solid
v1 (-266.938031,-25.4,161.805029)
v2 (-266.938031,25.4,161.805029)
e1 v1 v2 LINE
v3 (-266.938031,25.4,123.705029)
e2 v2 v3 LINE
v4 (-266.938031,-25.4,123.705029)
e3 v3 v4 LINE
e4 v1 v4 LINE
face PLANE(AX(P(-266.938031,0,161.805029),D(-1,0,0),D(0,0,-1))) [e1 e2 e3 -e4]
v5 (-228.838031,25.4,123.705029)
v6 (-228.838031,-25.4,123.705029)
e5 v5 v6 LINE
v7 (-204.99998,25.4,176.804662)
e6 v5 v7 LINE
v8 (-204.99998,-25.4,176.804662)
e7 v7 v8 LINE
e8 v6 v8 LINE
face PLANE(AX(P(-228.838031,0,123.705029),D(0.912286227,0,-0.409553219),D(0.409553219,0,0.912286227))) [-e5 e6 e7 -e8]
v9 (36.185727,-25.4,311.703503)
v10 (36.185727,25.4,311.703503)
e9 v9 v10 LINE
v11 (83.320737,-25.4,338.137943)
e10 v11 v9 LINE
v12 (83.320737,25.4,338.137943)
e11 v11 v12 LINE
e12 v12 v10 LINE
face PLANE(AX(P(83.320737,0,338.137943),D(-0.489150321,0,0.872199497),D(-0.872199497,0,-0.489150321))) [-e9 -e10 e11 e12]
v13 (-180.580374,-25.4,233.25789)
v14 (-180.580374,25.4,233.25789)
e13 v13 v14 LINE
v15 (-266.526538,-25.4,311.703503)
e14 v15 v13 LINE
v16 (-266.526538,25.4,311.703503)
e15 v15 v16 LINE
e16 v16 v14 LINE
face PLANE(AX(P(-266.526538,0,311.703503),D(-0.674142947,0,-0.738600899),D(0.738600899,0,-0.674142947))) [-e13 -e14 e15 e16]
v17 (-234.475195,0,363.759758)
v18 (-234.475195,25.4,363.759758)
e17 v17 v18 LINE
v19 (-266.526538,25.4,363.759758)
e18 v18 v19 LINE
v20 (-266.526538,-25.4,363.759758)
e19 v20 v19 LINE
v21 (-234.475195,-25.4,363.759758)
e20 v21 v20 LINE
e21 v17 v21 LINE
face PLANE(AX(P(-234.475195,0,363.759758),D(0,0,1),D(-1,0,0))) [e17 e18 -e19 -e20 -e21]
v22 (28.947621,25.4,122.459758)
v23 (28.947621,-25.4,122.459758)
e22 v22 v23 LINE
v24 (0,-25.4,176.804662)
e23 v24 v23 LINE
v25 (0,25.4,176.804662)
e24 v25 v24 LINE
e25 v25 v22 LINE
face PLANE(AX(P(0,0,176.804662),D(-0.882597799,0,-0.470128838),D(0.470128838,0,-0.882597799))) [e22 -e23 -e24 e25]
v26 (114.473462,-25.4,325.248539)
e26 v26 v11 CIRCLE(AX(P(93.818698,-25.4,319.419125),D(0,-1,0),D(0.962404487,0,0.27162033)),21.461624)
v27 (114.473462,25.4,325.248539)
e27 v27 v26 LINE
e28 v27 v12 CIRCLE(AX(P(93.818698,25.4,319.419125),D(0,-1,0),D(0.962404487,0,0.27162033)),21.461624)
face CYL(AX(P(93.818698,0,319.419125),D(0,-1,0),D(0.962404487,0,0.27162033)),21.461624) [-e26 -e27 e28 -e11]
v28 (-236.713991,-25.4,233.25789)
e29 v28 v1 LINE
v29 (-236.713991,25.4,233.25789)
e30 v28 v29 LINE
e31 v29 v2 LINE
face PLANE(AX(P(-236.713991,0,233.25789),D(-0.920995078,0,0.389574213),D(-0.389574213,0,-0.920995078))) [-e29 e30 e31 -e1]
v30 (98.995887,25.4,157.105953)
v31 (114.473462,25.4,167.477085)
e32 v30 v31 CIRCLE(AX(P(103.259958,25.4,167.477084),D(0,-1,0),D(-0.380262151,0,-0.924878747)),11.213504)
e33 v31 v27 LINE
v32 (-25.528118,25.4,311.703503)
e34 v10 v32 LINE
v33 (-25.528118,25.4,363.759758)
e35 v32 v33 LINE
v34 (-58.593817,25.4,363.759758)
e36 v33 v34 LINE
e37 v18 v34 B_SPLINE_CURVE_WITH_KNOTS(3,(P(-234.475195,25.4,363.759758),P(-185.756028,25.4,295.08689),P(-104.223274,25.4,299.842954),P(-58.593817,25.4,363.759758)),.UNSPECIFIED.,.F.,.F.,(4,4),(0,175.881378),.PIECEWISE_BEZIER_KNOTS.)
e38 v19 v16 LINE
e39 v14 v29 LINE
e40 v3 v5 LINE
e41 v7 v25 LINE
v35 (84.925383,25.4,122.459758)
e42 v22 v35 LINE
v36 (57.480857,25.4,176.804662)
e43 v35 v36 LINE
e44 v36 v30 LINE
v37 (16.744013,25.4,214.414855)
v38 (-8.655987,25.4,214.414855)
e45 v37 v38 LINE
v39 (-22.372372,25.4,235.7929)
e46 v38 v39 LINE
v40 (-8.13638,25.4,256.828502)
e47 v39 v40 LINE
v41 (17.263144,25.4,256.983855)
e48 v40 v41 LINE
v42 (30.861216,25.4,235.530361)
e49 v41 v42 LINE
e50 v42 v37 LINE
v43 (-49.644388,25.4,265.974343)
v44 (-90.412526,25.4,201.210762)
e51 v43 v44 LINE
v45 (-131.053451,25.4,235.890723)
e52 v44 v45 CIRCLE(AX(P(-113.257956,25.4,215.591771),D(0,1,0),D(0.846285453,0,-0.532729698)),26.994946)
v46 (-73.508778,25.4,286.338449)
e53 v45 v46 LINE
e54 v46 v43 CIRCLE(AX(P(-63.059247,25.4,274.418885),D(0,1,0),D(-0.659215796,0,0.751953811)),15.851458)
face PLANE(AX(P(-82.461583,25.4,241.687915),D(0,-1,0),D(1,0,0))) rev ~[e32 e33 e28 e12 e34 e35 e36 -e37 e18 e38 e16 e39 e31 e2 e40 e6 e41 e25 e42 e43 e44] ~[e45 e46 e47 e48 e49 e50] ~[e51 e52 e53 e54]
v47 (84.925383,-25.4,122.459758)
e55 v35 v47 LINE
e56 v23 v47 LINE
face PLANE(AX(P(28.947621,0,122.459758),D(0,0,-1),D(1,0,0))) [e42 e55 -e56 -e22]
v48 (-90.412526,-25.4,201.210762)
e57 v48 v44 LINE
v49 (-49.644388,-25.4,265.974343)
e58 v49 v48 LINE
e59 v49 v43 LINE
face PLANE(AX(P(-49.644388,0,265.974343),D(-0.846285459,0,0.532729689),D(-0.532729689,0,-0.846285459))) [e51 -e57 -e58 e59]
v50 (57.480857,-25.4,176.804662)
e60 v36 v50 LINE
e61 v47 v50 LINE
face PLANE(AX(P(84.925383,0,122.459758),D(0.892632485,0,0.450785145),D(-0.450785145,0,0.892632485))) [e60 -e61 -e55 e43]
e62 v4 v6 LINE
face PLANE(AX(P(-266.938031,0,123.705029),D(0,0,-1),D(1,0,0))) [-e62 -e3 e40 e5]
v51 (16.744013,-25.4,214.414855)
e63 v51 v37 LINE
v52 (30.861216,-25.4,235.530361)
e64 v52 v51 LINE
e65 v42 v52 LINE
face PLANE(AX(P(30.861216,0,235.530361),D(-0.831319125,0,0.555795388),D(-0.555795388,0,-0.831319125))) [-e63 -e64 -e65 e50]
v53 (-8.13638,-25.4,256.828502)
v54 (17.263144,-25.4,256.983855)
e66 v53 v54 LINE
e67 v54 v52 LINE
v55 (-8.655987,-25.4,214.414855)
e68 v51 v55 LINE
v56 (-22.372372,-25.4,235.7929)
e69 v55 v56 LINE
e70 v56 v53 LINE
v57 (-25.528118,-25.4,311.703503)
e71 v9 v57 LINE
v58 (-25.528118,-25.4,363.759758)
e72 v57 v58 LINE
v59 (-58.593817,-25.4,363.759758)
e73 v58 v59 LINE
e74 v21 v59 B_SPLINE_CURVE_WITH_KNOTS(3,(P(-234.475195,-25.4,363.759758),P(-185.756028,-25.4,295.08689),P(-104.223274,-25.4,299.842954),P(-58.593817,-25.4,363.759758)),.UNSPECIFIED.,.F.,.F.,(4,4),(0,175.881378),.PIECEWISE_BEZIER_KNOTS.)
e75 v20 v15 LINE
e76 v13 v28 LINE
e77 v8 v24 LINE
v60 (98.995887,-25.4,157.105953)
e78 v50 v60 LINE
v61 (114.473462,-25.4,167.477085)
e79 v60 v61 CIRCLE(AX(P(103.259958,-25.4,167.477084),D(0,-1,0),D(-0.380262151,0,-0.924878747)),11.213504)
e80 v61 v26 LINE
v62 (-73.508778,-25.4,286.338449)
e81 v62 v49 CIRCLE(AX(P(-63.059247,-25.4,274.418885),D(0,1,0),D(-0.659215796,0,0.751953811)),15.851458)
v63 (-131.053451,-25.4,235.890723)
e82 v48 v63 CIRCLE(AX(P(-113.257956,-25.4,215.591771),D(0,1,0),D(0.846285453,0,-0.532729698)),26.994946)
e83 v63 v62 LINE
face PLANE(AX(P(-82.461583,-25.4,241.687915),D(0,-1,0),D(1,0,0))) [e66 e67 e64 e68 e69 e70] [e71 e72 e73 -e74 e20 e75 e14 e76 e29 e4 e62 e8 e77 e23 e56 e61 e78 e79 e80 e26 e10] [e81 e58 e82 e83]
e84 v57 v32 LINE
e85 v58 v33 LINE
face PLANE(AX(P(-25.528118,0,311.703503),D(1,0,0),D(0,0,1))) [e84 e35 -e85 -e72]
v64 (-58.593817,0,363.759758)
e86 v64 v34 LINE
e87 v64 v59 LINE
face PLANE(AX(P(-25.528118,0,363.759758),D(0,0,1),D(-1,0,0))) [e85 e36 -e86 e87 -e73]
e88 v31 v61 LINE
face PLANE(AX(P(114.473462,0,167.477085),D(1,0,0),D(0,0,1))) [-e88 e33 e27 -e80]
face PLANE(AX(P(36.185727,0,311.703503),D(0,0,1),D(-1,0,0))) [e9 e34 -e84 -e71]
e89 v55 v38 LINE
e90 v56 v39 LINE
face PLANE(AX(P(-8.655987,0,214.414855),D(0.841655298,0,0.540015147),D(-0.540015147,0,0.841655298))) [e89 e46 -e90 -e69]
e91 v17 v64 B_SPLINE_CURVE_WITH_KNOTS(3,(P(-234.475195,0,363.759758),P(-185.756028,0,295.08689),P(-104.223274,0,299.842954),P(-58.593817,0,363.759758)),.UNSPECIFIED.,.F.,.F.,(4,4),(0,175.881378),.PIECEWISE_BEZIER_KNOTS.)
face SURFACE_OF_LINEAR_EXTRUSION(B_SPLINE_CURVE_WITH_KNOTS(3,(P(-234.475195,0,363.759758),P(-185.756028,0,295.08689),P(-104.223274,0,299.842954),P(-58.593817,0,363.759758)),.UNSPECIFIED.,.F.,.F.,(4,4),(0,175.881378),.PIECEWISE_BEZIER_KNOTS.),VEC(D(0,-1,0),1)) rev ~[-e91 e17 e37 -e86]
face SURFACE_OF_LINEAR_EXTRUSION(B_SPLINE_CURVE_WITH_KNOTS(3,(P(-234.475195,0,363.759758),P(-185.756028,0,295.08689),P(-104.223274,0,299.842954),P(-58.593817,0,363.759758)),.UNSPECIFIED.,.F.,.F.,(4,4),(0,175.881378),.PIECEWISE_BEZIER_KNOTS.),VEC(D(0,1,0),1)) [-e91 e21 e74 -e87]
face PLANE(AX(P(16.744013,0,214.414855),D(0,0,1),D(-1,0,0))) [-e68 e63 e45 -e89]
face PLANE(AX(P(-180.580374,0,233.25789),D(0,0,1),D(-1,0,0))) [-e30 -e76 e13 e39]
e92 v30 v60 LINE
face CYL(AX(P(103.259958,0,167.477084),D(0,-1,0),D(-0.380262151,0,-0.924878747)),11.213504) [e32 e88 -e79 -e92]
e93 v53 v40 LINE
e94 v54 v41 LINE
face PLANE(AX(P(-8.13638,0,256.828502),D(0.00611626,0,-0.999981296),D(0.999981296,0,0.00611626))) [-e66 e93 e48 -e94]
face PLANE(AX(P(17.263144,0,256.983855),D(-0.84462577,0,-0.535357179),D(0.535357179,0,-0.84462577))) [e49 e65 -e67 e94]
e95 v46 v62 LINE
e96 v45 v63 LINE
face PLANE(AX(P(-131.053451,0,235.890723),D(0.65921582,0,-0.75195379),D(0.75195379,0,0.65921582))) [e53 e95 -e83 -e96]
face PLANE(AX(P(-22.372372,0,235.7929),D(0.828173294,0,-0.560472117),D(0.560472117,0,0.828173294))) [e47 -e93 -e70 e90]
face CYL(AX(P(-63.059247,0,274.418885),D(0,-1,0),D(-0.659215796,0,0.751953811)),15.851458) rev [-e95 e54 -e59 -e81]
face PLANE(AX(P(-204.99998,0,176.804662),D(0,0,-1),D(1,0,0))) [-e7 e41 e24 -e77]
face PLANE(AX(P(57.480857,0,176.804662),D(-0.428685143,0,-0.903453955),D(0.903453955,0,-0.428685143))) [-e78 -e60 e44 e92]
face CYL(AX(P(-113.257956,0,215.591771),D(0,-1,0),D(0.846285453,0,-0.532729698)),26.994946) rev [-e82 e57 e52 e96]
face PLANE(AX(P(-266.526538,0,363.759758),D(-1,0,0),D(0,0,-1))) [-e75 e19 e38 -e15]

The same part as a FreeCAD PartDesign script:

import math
import FreeCAD as App
import Part
import Sketcher
from FreeCAD import Vector
Q = App.Units.Quantity

doc = App.newDocument("Part")
body = doc.addObject("PartDesign::Body", "Body")

# Sketch on XZ plane
sketch1 = body.newObject("Sketcher::SketchObject", "Sketch")
sketch1.AttachmentSupport = (doc.getObject("XZ_Plane"), [""])
sketch1.MapMode = "FlatFace"
sketch1.addGeometry([
    Part.LineSegment(Vector(-266.938031, 161.805029, 0), Vector(-266.938031, 123.705029, 0)),  # 0
    Part.LineSegment(Vector(-266.938031, 123.705029, 0), Vector(-228.838031, 123.705029, 0)),  # 1
    Part.LineSegment(Vector(-228.838031, 123.705029, 0), Vector(-204.99998, 176.804662, 0)),  # 2
    Part.LineSegment(Vector(-204.99998, 176.804662, 0), Vector(0, 176.804662, 0)),  # 3
    Part.LineSegment(Vector(0, 176.804662, 0), Vector(28.947621, 122.459758, 0)),  # 4
    Part.LineSegment(Vector(28.947621, 122.459758, 0), Vector(84.925383, 122.459758, 0)),  # 5
    Part.LineSegment(Vector(84.925383, 122.459758, 0), Vector(57.480857, 176.804662, 0)),  # 6
    Part.LineSegment(Vector(57.480857, 176.804662, 0), Vector(98.995887, 157.105953, 0)),  # 7
    Part.ArcOfCircle(Part.Circle(Vector(103.259958, 167.477084, 0), Vector(0, 0, 1), 11.213504), math.radians(-112.349922), math.radians(0.000003)),  # 8
    Part.LineSegment(Vector(114.473462, 167.477085, 0), Vector(114.473462, 325.248539, 0)),  # 9
    Part.ArcOfCircle(Part.Circle(Vector(93.818698, 319.419125, 0), Vector(0, 0, 1), 21.461624), math.radians(15.760709), math.radians(119.284753)),  # 10
    Part.LineSegment(Vector(83.320737, 338.137943, 0), Vector(36.185727, 311.703503, 0)),  # 11
    Part.LineSegment(Vector(36.185727, 311.703503, 0), Vector(-25.528118, 311.703503, 0)),  # 12
    Part.LineSegment(Vector(-25.528118, 311.703503, 0), Vector(-25.528118, 363.759758, 0)),  # 13
    Part.LineSegment(Vector(-25.528118, 363.759758, 0), Vector(-58.593817, 363.759758, 0)),  # 14
    Part.BSplineCurve([Vector(-234.475195, 363.759758, 0), Vector(-185.756028, 295.08689, 0), Vector(-104.223274, 299.842954, 0), Vector(-58.593817, 363.759758, 0)], [4, 4], [0, 175.881378], False, 3, [1, 1, 1, 1], False),  # 15
    Part.LineSegment(Vector(-234.475195, 363.759758, 0), Vector(-266.526538, 363.759758, 0)),  # 16
    Part.LineSegment(Vector(-266.526538, 363.759758, 0), Vector(-266.526538, 311.703503, 0)),  # 17
    Part.LineSegment(Vector(-266.526538, 311.703503, 0), Vector(-180.580374, 233.25789, 0)),  # 18
    Part.LineSegment(Vector(-180.580374, 233.25789, 0), Vector(-236.713991, 233.25789, 0)),  # 19
    Part.LineSegment(Vector(-236.713991, 233.25789, 0), Vector(-266.938031, 161.805029, 0)),  # 20
    Part.LineSegment(Vector(17.263144, 256.983855, 0), Vector(30.861216, 235.530361, 0)),  # 21
    Part.LineSegment(Vector(30.861216, 235.530361, 0), Vector(16.744013, 214.414855, 0)),  # 22
    Part.LineSegment(Vector(16.744013, 214.414855, 0), Vector(-8.655987, 214.414855, 0)),  # 23
    Part.LineSegment(Vector(-8.655987, 214.414855, 0), Vector(-22.372372, 235.7929, 0)),  # 24
    Part.LineSegment(Vector(-22.372372, 235.7929, 0), Vector(-8.13638, 256.828502, 0)),  # 25
    Part.LineSegment(Vector(-8.13638, 256.828502, 0), Vector(17.263144, 256.983855, 0)),  # 26
    Part.ArcOfCircle(Part.Circle(Vector(-113.257956, 215.591771, 0), Vector(0, 0, 1), 26.994946), math.radians(131.240094), math.radians(327.809924)),  # 27
    Part.LineSegment(Vector(-131.053451, 235.890723, 0), Vector(-73.508778, 286.338449, 0)),  # 28
    Part.ArcOfCircle(Part.Circle(Vector(-63.059247, 274.418885, 0), Vector(0, 0, 1), 15.851458), math.radians(-32.190073), math.radians(131.240092)),  # 29
    Part.LineSegment(Vector(-49.644388, 265.974343, 0), Vector(-90.412526, 201.210762, 0)),  # 30
], False)
sketch1.addConstraint([
    Sketcher.Constraint("Block", 15),
    Sketcher.Constraint("Coincident", 0, 2, 1, 1),
    Sketcher.Constraint("Coincident", 1, 2, 2, 1),
    Sketcher.Constraint("Coincident", 2, 2, 3, 1),
    Sketcher.Constraint("Coincident", 3, 2, 4, 1),
    Sketcher.Constraint("Coincident", 4, 2, 5, 1),
    Sketcher.Constraint("Coincident", 5, 2, 6, 1),
    Sketcher.Constraint("Coincident", 6, 2, 7, 1),
    Sketcher.Constraint("Coincident", 7, 2, 8, 1),
    Sketcher.Constraint("Tangent", 8, 2, 9, 1),
    Sketcher.Constraint("Coincident", 9, 2, 10, 1),
    Sketcher.Constraint("Tangent", 10, 2, 11, 1),
    Sketcher.Constraint("Coincident", 11, 2, 12, 1),
    Sketcher.Constraint("Coincident", 12, 2, 13, 1),
    Sketcher.Constraint("Coincident", 13, 2, 14, 1),
    Sketcher.Constraint("Coincident", 14, 2, 15, 2),
    Sketcher.Constraint("Coincident", 15, 1, 16, 1),
    Sketcher.Constraint("Coincident", 16, 2, 17, 1),
    Sketcher.Constraint("Coincident", 17, 2, 18, 1),
    Sketcher.Constraint("Coincident", 18, 2, 19, 1),
    Sketcher.Constraint("Coincident", 19, 2, 20, 1),
    Sketcher.Constraint("Coincident", 20, 2, 0, 1),
    Sketcher.Constraint("Coincident", 21, 2, 22, 1),
    Sketcher.Constraint("Coincident", 22, 2, 23, 1),
    Sketcher.Constraint("Coincident", 23, 2, 24, 1),
    Sketcher.Constraint("Coincident", 24, 2, 25, 1),
    Sketcher.Constraint("Coincident", 25, 2, 26, 1),
    Sketcher.Constraint("Coincident", 26, 2, 21, 1),
    Sketcher.Constraint("Tangent", 27, 1, 28, 1),
    Sketcher.Constraint("Tangent", 28, 2, 29, 2),
    Sketcher.Constraint("Tangent", 29, 1, 30, 1),
    Sketcher.Constraint("Tangent", 30, 2, 27, 2),
    Sketcher.Constraint("Vertical", 0),
    Sketcher.Constraint("Horizontal", 1),
    Sketcher.Constraint("Horizontal", 3),
    Sketcher.Constraint("Horizontal", 5),
    Sketcher.Constraint("Vertical", 9),
    Sketcher.Constraint("Horizontal", 12),
    Sketcher.Constraint("Vertical", 13),
    Sketcher.Constraint("Horizontal", 14),
    Sketcher.Constraint("Horizontal", 16),
    Sketcher.Constraint("Vertical", 17),
    Sketcher.Constraint("Horizontal", 19),
    Sketcher.Constraint("Horizontal", 23),
    Sketcher.Constraint("PointOnObject", 3, 2, -2),
    Sketcher.Constraint("Horizontal", 3, 2, 6, 2),
    Sketcher.Constraint("Horizontal", 12, 2, 17, 2),
    Sketcher.Constraint("Equal", 1, 0),
    Sketcher.Constraint("Equal", 21, 22),
    Sketcher.Constraint("Equal", 22, 24),
    Sketcher.Constraint("Equal", 24, 25),
    Sketcher.Constraint("Equal", 25, 26),
    Sketcher.Constraint("DistanceX", 23, 2, 23, 1, Q("1 in")),
    Sketcher.Constraint("Distance", 21, Q("1 in")),
    Sketcher.Constraint("DistanceX", 1, 1, 1, 2, Q("1.5 in")),
    Sketcher.Constraint("DistanceX", 29, 3, 8, 3, Q("6.5480002 in")),
    Sketcher.Constraint("DistanceX", 14, 2, 14, 1, 33.065699),
    Sketcher.Constraint("Radius", 8, 11.213504),
    Sketcher.Constraint("Radius", 10, 21.461624),
    Sketcher.Constraint("Radius", 27, 26.994946),
    Sketcher.Constraint("Radius", 29, 15.851458),
    Sketcher.Constraint("DistanceX", 3, 1, 3, 2, 204.99998),
    Sketcher.Constraint("DistanceX", 5, 1, 5, 2, 55.977762),
    Sketcher.Constraint("DistanceX", -1, 1, 10, 3, 93.818698),
    Sketcher.Constraint("DistanceY", -1, 1, 24, 2, 235.7929),
    Sketcher.Constraint("DistanceY", -1, 1, 25, 2, 256.828502),
    Sketcher.Constraint("DistanceY", 8, 3, 29, 3, 106.9418),
    Sketcher.Constraint("DistanceX", 6, 2, 8, 3, 45.779101),
    Sketcher.Constraint("DistanceY", 6, 2, 21, 2, 58.725699),
    Sketcher.Constraint("DistanceY", 25, 2, 12, 2, 54.875001),
    Sketcher.Constraint("DistanceY", 22, 2, 26, 2, 42.569),
    Sketcher.Constraint("DistanceX", 28, 2, 25, 2, 65.372398),
    Sketcher.Constraint("Distance", 6, 60.881611),
    Sketcher.Constraint("Distance", 7, 45.951462),
    Sketcher.Constraint("Distance", 18, 116.363471),
    Sketcher.Constraint("Distance", 20, 77.58224),
    Sketcher.Constraint("DistanceX", 12, 2, 12, 1, 61.713845),
    Sketcher.Constraint("DistanceX", 16, 2, 16, 1, 32.051343),
    Sketcher.Constraint("DistanceX", 19, 2, 19, 1, 56.133617),
    Sketcher.Constraint("DistanceY", 9, 1, 9, 2, 157.771454),
    Sketcher.Constraint("DistanceX", -1, 1, 8, 3, 103.259958),
    Sketcher.Constraint("DistanceY", -1, 1, 27, 3, 215.591771),
    Sketcher.Constraint("DistanceX", 0, 2, -1, 1, 266.938031),
    Sketcher.Constraint("DistanceY", -1, 1, 0, 2, 123.705029),
    Sketcher.Constraint("DistanceY", -1, 1, 2, 2, 176.804662),
    Sketcher.Constraint("DistanceX", -1, 1, 4, 2, 28.947621),
    Sketcher.Constraint("DistanceY", -1, 1, 9, 2, 325.248539),
    Sketcher.Constraint("DistanceX", 24, 2, -1, 1, 22.372372),
])
pad1 = body.newObject("PartDesign::Pad", "Pad")
pad1.Profile = sketch1
pad1.Length = Q("2 in")
pad1.Midplane = True

doc.recompute()
